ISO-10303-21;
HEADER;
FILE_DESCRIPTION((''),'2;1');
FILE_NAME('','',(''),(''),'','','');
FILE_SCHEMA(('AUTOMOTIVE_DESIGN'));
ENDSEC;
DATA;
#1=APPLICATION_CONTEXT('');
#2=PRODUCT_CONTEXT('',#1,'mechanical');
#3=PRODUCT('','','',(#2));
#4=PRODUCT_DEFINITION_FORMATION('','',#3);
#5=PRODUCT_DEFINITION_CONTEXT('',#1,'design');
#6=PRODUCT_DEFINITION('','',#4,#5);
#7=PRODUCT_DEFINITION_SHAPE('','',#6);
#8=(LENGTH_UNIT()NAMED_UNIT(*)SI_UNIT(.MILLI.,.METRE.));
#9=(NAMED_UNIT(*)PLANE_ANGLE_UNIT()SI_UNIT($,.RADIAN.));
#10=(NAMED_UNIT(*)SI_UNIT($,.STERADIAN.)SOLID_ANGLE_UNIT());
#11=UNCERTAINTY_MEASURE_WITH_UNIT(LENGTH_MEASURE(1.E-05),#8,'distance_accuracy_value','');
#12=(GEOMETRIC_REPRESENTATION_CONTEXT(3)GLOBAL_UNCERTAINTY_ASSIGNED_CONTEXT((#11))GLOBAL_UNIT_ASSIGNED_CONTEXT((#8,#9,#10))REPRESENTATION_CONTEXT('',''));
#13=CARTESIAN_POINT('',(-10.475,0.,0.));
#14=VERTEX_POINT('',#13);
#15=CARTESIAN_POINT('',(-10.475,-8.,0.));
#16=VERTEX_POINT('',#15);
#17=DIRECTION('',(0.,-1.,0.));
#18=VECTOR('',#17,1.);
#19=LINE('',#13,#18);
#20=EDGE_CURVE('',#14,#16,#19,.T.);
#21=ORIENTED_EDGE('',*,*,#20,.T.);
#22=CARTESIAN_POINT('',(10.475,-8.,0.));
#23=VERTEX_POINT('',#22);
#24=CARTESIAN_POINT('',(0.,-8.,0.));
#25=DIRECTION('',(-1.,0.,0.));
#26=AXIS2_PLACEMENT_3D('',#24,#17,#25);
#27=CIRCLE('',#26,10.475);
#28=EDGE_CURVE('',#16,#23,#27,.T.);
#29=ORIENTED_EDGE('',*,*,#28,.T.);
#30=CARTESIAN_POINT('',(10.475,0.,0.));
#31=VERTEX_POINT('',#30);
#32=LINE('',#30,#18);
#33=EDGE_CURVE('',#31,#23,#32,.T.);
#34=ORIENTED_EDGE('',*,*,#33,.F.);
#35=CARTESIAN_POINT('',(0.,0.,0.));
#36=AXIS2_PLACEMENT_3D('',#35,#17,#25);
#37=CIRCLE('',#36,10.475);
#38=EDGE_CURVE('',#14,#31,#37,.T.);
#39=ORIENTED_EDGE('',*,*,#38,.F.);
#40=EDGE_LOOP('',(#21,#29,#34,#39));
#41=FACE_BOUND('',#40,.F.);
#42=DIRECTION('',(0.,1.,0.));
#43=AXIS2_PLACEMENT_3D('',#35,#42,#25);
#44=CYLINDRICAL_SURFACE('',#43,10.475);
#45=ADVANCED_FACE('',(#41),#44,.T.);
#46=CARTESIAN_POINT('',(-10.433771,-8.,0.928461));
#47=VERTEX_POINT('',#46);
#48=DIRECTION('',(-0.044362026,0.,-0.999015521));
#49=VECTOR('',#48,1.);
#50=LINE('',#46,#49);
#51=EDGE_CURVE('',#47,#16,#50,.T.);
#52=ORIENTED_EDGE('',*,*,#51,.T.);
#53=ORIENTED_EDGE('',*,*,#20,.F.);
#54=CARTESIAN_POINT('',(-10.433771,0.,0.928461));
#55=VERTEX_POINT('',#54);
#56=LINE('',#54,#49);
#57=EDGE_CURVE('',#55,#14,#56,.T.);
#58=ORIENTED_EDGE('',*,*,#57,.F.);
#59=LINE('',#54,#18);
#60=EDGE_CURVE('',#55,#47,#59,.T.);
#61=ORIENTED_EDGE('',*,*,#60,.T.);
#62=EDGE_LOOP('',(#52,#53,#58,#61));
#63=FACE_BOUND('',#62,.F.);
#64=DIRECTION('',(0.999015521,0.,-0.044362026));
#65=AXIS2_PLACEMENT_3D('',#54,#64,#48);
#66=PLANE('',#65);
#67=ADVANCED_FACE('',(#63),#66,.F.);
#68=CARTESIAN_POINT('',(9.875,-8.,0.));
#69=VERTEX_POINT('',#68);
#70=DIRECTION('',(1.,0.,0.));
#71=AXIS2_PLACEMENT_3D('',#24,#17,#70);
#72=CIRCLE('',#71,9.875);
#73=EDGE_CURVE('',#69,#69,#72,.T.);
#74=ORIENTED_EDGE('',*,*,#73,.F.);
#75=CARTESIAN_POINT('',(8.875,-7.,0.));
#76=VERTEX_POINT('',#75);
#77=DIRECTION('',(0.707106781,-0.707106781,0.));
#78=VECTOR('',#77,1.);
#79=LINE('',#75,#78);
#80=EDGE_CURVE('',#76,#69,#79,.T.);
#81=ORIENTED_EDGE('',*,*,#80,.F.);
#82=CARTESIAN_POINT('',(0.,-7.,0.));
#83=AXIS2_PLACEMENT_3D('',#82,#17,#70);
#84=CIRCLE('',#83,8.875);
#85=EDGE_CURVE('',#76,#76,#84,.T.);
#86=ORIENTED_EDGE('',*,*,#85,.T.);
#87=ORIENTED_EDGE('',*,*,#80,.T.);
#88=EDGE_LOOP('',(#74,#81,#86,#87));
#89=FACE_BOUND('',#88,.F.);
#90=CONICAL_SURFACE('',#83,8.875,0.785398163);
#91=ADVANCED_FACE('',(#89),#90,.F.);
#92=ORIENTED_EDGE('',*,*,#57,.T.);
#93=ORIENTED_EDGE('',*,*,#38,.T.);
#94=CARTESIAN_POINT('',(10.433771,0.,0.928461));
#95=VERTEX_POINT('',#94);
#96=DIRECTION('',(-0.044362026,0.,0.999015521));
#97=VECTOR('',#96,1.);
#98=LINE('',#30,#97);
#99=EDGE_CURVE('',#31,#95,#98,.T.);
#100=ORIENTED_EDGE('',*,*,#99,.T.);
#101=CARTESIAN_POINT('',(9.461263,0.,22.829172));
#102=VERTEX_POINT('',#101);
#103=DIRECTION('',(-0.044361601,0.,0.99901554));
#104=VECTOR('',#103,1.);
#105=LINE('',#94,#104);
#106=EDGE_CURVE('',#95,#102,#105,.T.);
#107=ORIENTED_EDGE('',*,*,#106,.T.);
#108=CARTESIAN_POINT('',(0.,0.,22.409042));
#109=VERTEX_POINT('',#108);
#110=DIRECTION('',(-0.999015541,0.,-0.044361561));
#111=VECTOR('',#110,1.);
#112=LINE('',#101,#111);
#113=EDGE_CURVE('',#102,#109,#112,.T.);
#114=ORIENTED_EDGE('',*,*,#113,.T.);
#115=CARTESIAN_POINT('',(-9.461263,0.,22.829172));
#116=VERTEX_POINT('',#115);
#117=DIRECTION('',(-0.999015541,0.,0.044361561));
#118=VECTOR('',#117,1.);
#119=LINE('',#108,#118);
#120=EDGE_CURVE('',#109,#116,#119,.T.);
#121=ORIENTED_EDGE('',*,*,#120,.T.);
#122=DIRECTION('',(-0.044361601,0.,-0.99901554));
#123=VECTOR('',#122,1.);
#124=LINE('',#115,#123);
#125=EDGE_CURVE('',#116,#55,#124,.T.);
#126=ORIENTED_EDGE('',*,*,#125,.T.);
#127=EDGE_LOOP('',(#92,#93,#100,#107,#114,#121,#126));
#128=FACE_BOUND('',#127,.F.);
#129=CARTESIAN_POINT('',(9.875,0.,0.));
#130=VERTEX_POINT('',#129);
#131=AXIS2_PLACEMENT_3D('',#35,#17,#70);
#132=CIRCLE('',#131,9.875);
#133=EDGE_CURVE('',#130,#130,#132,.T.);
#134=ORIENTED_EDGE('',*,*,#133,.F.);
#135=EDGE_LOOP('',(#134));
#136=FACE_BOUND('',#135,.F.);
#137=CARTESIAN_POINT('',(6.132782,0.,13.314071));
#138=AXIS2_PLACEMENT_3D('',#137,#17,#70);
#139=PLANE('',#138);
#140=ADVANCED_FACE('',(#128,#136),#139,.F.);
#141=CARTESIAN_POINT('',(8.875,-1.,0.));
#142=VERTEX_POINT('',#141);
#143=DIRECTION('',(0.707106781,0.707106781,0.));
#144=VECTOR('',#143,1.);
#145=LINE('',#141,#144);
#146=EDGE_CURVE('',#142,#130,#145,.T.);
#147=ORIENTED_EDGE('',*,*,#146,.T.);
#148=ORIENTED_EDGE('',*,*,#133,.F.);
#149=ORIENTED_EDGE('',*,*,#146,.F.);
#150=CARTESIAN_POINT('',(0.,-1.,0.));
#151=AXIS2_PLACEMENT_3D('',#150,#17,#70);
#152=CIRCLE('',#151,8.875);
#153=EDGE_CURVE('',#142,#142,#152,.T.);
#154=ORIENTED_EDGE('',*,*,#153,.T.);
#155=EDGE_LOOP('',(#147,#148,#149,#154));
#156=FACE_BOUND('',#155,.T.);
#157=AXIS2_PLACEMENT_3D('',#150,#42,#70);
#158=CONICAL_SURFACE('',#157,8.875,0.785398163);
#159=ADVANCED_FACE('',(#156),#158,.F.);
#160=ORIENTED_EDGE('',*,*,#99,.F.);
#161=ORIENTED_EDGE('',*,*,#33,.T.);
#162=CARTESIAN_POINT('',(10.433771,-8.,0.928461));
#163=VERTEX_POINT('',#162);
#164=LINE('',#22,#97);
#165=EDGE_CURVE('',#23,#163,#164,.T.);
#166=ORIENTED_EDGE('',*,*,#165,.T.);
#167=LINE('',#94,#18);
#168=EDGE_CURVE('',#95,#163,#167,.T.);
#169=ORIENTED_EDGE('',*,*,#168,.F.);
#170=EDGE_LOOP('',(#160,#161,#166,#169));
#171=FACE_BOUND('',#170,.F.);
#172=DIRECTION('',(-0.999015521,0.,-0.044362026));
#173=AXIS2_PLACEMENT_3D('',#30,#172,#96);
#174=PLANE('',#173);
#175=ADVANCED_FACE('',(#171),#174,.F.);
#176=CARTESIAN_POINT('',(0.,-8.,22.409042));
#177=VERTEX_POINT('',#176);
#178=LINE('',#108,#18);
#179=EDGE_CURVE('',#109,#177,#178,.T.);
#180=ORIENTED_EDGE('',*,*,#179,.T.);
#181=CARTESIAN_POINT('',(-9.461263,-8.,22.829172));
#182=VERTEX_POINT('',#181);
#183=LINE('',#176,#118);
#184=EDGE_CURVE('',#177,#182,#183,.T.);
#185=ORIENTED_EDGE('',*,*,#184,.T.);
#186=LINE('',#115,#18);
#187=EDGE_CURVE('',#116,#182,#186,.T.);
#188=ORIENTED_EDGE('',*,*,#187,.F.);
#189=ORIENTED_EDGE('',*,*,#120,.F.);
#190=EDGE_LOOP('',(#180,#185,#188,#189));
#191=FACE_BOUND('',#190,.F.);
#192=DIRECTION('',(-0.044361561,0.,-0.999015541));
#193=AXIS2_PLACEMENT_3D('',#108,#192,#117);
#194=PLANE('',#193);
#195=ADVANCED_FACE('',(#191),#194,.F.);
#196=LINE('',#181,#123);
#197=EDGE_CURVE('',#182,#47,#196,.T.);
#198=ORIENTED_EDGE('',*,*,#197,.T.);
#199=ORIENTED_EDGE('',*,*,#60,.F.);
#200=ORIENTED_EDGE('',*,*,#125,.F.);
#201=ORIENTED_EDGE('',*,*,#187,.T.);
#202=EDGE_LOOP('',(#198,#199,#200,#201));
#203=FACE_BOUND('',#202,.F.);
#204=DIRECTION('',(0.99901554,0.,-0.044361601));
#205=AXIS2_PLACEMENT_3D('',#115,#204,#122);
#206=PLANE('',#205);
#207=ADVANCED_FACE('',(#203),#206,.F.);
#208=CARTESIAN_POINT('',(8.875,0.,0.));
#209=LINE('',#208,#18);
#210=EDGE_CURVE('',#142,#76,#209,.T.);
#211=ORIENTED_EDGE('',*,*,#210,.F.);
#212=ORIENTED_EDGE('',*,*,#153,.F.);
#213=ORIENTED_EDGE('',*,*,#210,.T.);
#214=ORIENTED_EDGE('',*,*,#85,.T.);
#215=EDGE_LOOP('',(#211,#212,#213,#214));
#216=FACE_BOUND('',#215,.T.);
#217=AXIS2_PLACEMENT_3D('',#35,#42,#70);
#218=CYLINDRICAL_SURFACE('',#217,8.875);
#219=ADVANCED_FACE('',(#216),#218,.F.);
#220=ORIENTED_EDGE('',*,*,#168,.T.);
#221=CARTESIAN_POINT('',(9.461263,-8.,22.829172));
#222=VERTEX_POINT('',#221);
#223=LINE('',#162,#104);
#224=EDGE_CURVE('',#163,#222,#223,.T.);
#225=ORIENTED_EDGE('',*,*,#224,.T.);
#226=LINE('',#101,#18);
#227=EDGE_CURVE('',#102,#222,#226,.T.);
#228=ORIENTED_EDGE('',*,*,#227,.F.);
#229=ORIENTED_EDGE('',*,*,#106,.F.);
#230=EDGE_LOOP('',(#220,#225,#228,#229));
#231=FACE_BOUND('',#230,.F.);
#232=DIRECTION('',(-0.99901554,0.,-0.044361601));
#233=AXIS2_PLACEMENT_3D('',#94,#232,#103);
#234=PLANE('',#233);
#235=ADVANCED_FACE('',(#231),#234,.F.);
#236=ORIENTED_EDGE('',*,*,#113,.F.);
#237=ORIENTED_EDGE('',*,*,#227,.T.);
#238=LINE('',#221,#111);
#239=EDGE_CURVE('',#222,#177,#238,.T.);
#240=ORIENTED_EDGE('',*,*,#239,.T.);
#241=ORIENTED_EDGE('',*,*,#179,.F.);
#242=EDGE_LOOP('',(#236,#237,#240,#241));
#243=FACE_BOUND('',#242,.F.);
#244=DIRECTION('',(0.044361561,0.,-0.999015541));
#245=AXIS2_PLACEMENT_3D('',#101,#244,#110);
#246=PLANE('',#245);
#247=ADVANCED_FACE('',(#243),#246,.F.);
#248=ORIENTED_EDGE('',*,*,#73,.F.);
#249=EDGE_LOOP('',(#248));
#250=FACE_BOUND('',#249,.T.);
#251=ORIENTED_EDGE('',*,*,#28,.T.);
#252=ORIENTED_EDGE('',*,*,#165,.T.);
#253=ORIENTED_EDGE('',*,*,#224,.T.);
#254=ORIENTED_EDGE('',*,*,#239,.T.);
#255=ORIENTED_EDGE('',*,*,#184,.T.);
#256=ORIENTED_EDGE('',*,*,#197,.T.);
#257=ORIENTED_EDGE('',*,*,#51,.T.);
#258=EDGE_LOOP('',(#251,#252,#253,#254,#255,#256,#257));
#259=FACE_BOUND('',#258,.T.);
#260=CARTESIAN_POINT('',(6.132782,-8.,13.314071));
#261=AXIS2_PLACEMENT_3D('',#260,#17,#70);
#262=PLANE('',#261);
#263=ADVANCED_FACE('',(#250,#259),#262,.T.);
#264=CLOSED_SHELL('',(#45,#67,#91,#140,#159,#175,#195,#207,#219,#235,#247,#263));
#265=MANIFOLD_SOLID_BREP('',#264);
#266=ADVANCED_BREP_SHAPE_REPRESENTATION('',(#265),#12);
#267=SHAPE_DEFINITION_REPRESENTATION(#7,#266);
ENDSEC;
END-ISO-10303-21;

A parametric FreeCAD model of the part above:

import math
import FreeCAD as App
import Part
import Sketcher


def edges_at(feature, points):
    """Names of the edges that pass closest to the given points."""
    edges = feature.Shape.Edges
    near = lambda p: min(range(len(edges)), key=lambda i: edges[i].distToShape(Part.Vertex(*p))[0])
    return sorted({f"Edge{near(p) + 1}" for p in points})

doc = App.newDocument("Part")
body = doc.addObject("PartDesign::Body", "Body")

# Sketch on XZ plane
sketch1 = doc.addObject("Sketcher::SketchObject", "Sketch")
body.addObject(sketch1)
sketch1.AttachmentSupport = (doc.XZ_Plane, [""])
sketch1.MapMode = "FlatFace"
sketch1.addGeometry(Part.LineSegment(App.Vector(10.433771, 0.928461, 0), App.Vector(9.461263, 22.829172, 0)), False)
sketch1.addGeometry(Part.LineSegment(App.Vector(9.461263, 22.829172, 0), App.Vector(0, 22.409042, 0)), False)
sketch1.addGeometry(Part.LineSegment(App.Vector(0, 22.409042, 0), App.Vector(-9.461263, 22.829172, 0)), False)
sketch1.addGeometry(Part.LineSegment(App.Vector(-9.461263, 22.829172, 0), App.Vector(-10.433771, 0.928461, 0)), False)
sketch1.addGeometry(Part.LineSegment(App.Vector(-10.433771, 0.928461, 0), App.Vector(-10.475, 0, 0)), False)
sketch1.addGeometry(Part.ArcOfCircle(Part.Circle(App.Vector(0, 0, 0), App.Vector(0, 0, 1), 10.475), math.radians(180), math.radians(360)), False)
sketch1.addGeometry(Part.LineSegment(App.Vector(10.475, 0, 0), App.Vector(10.433771, 0.928461, 0)), False)
sketch1.addGeometry(Part.Circle(App.Vector(0, 0, 0), App.Vector(0, 0, 1), 8.875), False)
sketch1.addConstraint(Sketcher.Constraint("Coincident", 0, 2, 1, 1))
sketch1.addConstraint(Sketcher.Constraint("Coincident", 1, 2, 2, 1))
sketch1.addConstraint(Sketcher.Constraint("Coincident", 2, 2, 3, 1))
sketch1.addConstraint(Sketcher.Constraint("Coincident", 3, 2, 4, 1))
sketch1.addConstraint(Sketcher.Constraint("Coincident", 4, 2, 5, 1))
sketch1.addConstraint(Sketcher.Constraint("Coincident", 5, 2, 6, 1))
sketch1.addConstraint(Sketcher.Constraint("Coincident", 6, 2, 0, 1))
sketch1.addConstraint(Sketcher.Constraint("Coincident", 5, 3, -1, 1))
sketch1.addConstraint(Sketcher.Constraint("Coincident", 7, 3, -1, 1))
sketch1.addConstraint(Sketcher.Constraint("Symmetric", 0, 2, 2, 2, -2))
sketch1.addConstraint(Sketcher.Constraint("Symmetric", 3, 2, 6, 2, -2))
sketch1.addConstraint(Sketcher.Constraint("PointOnObject", 1, 2, -2))
sketch1.addConstraint(Sketcher.Constraint("PointOnObject", 4, 2, -1))
sketch1.addConstraint(Sketcher.Constraint("PointOnObject", 5, 2, -1))
sketch1.addConstraint(Sketcher.Constraint("Perpendicular", 0, 1))
sketch1.addConstraint(Sketcher.Constraint("Parallel", 3, 4))
sketch1.addConstraint(Sketcher.Constraint("Diameter", 7, 17.75))
sketch1.addConstraint(Sketcher.Constraint("Radius", 5, 10.475))
sketch1.addConstraint(Sketcher.Constraint("DistanceY", -1, 1, 0, 2, 22.829172))
sketch1.addConstraint(Sketcher.Constraint("DistanceY", -1, 1, 1, 2, 22.409042))
sketch1.addConstraint(Sketcher.Constraint("DistanceX", 3, 2, -1, 1, 10.433771))
pad1 = doc.addObject("PartDesign::Pad", "Pad")
body.addObject(pad1)
pad1.Profile = sketch1
pad1.Length = 8
doc.recompute()

chamfer = doc.addObject("PartDesign::Chamfer", "Chamfer")
body.addObject(chamfer)
chamfer.Base = (pad1, edges_at(pad1, [(-8.875, 0, 0), (-8.875, -8, 0)]))
chamfer.Size = 1

doc.recompute()
